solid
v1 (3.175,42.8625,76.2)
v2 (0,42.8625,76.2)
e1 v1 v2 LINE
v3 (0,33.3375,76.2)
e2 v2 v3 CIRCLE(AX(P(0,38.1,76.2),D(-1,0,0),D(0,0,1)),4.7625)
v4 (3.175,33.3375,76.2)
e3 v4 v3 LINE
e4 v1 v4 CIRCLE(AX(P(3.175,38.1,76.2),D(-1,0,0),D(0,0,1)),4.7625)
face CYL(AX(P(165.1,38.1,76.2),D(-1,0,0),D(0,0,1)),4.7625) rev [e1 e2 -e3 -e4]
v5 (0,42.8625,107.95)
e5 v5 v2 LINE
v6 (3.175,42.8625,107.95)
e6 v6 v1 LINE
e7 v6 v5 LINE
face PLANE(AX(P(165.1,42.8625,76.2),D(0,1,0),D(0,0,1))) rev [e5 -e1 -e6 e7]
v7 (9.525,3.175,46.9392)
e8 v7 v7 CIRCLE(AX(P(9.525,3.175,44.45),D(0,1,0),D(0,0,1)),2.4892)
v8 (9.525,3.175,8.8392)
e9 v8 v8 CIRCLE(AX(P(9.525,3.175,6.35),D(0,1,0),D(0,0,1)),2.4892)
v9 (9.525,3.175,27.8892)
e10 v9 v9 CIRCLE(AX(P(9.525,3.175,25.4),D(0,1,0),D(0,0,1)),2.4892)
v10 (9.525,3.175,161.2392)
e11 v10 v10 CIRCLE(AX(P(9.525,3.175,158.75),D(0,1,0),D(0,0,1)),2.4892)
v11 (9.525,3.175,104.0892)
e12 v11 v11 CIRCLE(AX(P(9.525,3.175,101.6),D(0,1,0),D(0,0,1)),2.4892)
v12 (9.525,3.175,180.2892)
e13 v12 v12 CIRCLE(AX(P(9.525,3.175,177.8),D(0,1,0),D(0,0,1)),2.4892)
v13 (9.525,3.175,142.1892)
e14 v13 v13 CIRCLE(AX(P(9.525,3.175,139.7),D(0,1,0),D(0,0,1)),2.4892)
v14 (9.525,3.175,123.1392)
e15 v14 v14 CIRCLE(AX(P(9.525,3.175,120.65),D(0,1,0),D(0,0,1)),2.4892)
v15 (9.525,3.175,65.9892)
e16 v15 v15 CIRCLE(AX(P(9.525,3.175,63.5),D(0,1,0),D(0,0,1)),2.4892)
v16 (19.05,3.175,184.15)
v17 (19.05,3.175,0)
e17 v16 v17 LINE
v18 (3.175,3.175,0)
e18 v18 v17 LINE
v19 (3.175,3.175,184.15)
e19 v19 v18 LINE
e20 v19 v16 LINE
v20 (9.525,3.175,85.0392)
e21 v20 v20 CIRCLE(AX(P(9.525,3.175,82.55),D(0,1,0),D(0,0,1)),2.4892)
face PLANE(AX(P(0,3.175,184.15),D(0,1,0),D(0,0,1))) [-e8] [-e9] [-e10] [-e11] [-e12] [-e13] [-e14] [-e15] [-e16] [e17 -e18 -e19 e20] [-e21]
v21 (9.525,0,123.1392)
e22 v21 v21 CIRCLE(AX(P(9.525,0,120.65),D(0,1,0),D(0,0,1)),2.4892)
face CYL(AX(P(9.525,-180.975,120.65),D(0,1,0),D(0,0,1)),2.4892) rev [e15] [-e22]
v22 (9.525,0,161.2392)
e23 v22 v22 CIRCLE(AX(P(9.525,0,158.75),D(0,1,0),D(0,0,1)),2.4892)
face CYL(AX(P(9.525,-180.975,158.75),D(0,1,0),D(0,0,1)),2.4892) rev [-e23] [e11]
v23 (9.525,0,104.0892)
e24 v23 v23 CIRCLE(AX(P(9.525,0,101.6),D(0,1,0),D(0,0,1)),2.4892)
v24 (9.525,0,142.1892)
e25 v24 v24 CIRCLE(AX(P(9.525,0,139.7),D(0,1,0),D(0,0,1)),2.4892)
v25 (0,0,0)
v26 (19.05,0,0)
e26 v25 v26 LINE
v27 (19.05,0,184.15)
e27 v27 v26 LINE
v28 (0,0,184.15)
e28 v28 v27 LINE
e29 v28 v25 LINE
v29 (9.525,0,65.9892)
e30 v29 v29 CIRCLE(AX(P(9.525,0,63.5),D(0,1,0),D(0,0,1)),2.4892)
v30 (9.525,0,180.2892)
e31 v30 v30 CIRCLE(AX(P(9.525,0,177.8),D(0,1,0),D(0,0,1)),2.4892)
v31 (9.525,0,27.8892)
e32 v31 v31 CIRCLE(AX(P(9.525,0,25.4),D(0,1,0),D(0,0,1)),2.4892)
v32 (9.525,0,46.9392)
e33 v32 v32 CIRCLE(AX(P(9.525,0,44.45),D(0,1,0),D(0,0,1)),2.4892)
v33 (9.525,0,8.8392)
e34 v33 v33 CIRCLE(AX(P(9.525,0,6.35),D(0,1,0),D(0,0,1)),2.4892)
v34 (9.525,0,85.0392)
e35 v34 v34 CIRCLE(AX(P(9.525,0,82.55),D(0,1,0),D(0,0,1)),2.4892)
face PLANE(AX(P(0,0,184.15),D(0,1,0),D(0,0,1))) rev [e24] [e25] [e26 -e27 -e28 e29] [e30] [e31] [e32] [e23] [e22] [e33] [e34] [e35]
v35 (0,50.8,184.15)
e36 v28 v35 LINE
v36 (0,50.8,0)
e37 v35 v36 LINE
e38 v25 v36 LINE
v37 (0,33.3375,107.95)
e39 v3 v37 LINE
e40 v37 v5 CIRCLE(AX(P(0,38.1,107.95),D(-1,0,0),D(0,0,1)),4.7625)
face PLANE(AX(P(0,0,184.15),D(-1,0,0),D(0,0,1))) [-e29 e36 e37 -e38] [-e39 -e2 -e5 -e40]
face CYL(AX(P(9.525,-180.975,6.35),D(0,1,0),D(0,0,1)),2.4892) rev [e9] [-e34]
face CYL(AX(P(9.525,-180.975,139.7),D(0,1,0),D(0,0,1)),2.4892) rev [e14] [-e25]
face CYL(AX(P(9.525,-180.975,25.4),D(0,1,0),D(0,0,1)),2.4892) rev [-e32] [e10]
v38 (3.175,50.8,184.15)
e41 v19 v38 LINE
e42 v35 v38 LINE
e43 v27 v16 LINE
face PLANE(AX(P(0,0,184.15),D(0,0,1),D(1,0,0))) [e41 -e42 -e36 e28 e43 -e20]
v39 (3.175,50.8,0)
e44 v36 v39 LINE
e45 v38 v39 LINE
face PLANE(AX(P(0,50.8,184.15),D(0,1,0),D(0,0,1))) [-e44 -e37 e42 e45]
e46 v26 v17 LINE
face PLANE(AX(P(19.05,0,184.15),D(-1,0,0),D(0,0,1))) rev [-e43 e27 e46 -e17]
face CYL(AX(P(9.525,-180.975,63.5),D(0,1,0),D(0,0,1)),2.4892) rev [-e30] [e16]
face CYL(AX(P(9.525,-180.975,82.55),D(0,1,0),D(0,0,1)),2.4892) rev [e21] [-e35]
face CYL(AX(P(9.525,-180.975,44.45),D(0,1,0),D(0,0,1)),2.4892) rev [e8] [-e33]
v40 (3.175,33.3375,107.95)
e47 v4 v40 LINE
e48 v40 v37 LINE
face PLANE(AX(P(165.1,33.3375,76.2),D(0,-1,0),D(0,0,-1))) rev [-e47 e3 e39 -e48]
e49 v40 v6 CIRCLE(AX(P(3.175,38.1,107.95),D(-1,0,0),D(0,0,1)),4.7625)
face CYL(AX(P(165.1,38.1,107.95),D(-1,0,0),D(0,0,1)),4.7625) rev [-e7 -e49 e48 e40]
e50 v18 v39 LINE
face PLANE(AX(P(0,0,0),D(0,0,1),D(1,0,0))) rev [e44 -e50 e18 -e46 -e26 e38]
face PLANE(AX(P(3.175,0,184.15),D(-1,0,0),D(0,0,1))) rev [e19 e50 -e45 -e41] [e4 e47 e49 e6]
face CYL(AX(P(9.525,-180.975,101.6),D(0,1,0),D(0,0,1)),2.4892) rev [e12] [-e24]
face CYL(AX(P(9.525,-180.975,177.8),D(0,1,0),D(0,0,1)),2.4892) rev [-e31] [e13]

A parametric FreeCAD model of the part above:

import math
import FreeCAD as App
import Part
import Sketcher
Q = App.Units.Quantity


def add_polygon(sketch, points):
    """Adds a closed chain of lines whose ends are joined by coincident constraints."""
    first, n = sketch.GeometryCount, len(points)
    for a, b in zip(points, points[1:] + points[:1]):
        sketch.addGeometry(Part.LineSegment(App.Vector(*a, 0), App.Vector(*b, 0)), False)
    for i in range(n):
        sketch.addConstraint(Sketcher.Constraint("Coincident", first + i, 2, first + (i + 1) % n, 1))

doc = App.newDocument("Part")
body = doc.addObject("PartDesign::Body", "Body")

sketch1 = body.newObject("Sketcher::SketchObject", "Sketch")
sketch1.AttachmentSupport = (doc.getObject("XY_Plane"), [""])
sketch1.MapMode = "FlatFace"
add_polygon(sketch1, [(0, 50.8), (0, 0), (19.05, 0), (19.05, 3.175), (3.175, 3.175), (3.175, 50.8)])
sketch1.addConstraint(Sketcher.Constraint("Vertical", 0))
sketch1.addConstraint(Sketcher.Constraint("Horizontal", 1))
sketch1.addConstraint(Sketcher.Constraint("Vertical", 2))
sketch1.addConstraint(Sketcher.Constraint("Horizontal", 3))
sketch1.addConstraint(Sketcher.Constraint("Vertical", 4))
sketch1.addConstraint(Sketcher.Constraint("Horizontal", 5))
sketch1.addConstraint(Sketcher.Constraint("Coincident", 0, 2, -1, 1))
sketch1.addConstraint(Sketcher.Constraint("Equal", 5, 2))
sketch1.addConstraint(Sketcher.Constraint("DistanceY", 0, 2, 0, 1, Q("2 in")))
sketch1.addConstraint(Sketcher.Constraint("DistanceX", 1, 1, 1, 2, Q("0.75 in")))
sketch1.addConstraint(Sketcher.Constraint("DistanceX", 3, 2, 3, 1, Q("0.625 in")))
pad1 = body.newObject("PartDesign::Pad", "Pad")
pad1.Profile = sketch1
pad1.Length = Q("7.25 in")

sketch2 = body.newObject("Sketcher::SketchObject", "Sketch001")
sketch2.AttachmentSupport = (doc.getObject("XZ_Plane"), [""])
sketch2.MapMode = "FlatFace"
sketch2.AttachmentOffset = App.Placement(App.Vector(0, 0, -0.125 * 25.4), App.Rotation())
sketch2.addGeometry(Part.Circle(App.Vector(9.525, 6.35, 0), App.Vector(0, 0, 1), 2.4892), False)
sketch2.addGeometry(Part.Circle(App.Vector(9.525, 25.4, 0), App.Vector(0, 0, 1), 2.4892), False)
sketch2.addGeometry(Part.Circle(App.Vector(9.525, 44.45, 0), App.Vector(0, 0, 1), 2.4892), False)
sketch2.addGeometry(Part.Circle(App.Vector(9.525, 63.5, 0), App.Vector(0, 0, 1), 2.4892), False)
sketch2.addGeometry(Part.Circle(App.Vector(9.525, 82.55, 0), App.Vector(0, 0, 1), 2.4892), False)
sketch2.addGeometry(Part.Circle(App.Vector(9.525, 101.6, 0), App.Vector(0, 0, 1), 2.4892), False)
sketch2.addGeometry(Part.Circle(App.Vector(9.525, 120.65, 0), App.Vector(0, 0, 1), 2.4892), False)
sketch2.addGeometry(Part.Circle(App.Vector(9.525, 139.7, 0), App.Vector(0, 0, 1), 2.4892), False)
sketch2.addGeometry(Part.Circle(App.Vector(9.525, 158.75, 0), App.Vector(0, 0, 1), 2.4892), False)
sketch2.addGeometry(Part.Circle(App.Vector(9.525, 177.8, 0), App.Vector(0, 0, 1), 2.4892), False)
sketch2.addConstraint(Sketcher.Constraint("Equal", 0, 1))
sketch2.addConstraint(Sketcher.Constraint("Equal", 1, 2))
sketch2.addConstraint(Sketcher.Constraint("Equal", 2, 3))
sketch2.addConstraint(Sketcher.Constraint("Equal", 3, 4))
sketch2.addConstraint(Sketcher.Constraint("Equal", 4, 5))
sketch2.addConstraint(Sketcher.Constraint("Equal", 5, 6))
sketch2.addConstraint(Sketcher.Constraint("Equal", 6, 7))
sketch2.addConstraint(Sketcher.Constraint("Equal", 7, 8))
sketch2.addConstraint(Sketcher.Constraint("Equal", 8, 9))
sketch2.addConstraint(Sketcher.Constraint("Vertical", 0, 3, 1, 3))
sketch2.addConstraint(Sketcher.Constraint("Vertical", 1, 3, 2, 3))
sketch2.addConstraint(Sketcher.Constraint("Vertical", 2, 3, 3, 3))
sketch2.addConstraint(Sketcher.Constraint("Vertical", 3, 3, 4, 3))
sketch2.addConstraint(Sketcher.Constraint("Vertical", 4, 3, 5, 3))
sketch2.addConstraint(Sketcher.Constraint("Vertical", 5, 3, 6, 3))
sketch2.addConstraint(Sketcher.Constraint("Vertical", 6, 3, 7, 3))
sketch2.addConstraint(Sketcher.Constraint("Vertical", 7, 3, 8, 3))
sketch2.addConstraint(Sketcher.Constraint("Vertical", 8, 3, 9, 3))
sketch2.addConstraint(Sketcher.Constraint("Diameter", 0, Q("0.196 in")))
sketch2.addConstraint(Sketcher.Constraint("DistanceY", -1, 1, 1, 3, Q("1 in")))
sketch2.addConstraint(Sketcher.Constraint("DistanceY", -1, 1, 5, 3, Q("4 in")))
sketch2.addConstraint(Sketcher.Constraint("DistanceY", -1, 1, 9, 3, Q("7 in")))
sketch2.addConstraint(Sketcher.Constraint("DistanceY", 0, 3, 4, 3, Q("3 in")))
sketch2.addConstraint(Sketcher.Constraint("DistanceY", 2, 3, 6, 3, Q("3 in")))
sketch2.addConstraint(Sketcher.Constraint("DistanceY", 3, 3, 7, 3, Q("3 in")))
sketch2.addConstraint(Sketcher.Constraint("DistanceY", 4, 3, 8, 3, Q("3 in")))
sketch2.addConstraint(Sketcher.Constraint("DistanceY", -1, 1, 3, 3, Q("2.5 in")))
sketch2.addConstraint(Sketcher.Constraint("DistanceY", 0, 3, 2, 3, Q("1.5 in")))
sketch2.addConstraint(Sketcher.Constraint("DistanceY", -1, 1, 0, 3, Q("0.25 in")))
sketch2.addConstraint(Sketcher.Constraint("DistanceX", -1, 1, 0, 3, Q("0.375 in")))
pocket1 = body.newObject("PartDesign::Pocket", "Pocket")
pocket1.Profile = sketch2
pocket1.Length = Q("7.25 in")
pocket1.Reversed = True

sketch3 = body.newObject("Sketcher::SketchObject", "Sketch002")
sketch3.AttachmentSupport = (doc.getObject("YZ_Plane"), [""])
sketch3.MapMode = "FlatFace"
sketch3.addGeometry(Part.LineSegment(App.Vector(42.8625, 107.95, 0), App.Vector(42.8625, 76.2, 0)), False)
sketch3.addGeometry(Part.ArcOfCircle(Part.Circle(App.Vector(38.1, 76.2, 0), App.Vector(0, 0, 1), 4.7625), math.radians(180), math.radians(360)), False)
sketch3.addGeometry(Part.LineSegment(App.Vector(33.3375, 76.2, 0), App.Vector(33.3375, 107.95, 0)), False)
sketch3.addGeometry(Part.ArcOfCircle(Part.Circle(App.Vector(38.1, 107.95, 0), App.Vector(0, 0, 1), 4.7625), math.radians(0), math.radians(180)), False)
sketch3.addConstraint(Sketcher.Constraint("Tangent", 0, 2, 1, 2))
sketch3.addConstraint(Sketcher.Constraint("Tangent", 1, 1, 2, 1))
sketch3.addConstraint(Sketcher.Constraint("Tangent", 2, 2, 3, 2))
sketch3.addConstraint(Sketcher.Constraint("Tangent", 3, 1, 0, 1))
sketch3.addConstraint(Sketcher.Constraint("Vertical", 0))
sketch3.addConstraint(Sketcher.Constraint("Vertical", 2))
sketch3.addConstraint(Sketcher.Constraint("DistanceY", -1, 1, 1, 3, Q("3 in")))
sketch3.addConstraint(Sketcher.Constraint("Radius", 1, Q("0.1875 in")))
sketch3.addConstraint(Sketcher.Constraint("DistanceY", 0, 2, 0, 1, Q("1.25 in")))
sketch3.addConstraint(Sketcher.Constraint("DistanceX", -1, 1, 1, 3, Q("1.5 in")))
pocket2 = body.newObject("PartDesign::Pocket", "Pocket001")
pocket2.Profile = sketch3
pocket2.Length = Q("6.5 in")
pocket2.Reversed = True

doc.recompute()
